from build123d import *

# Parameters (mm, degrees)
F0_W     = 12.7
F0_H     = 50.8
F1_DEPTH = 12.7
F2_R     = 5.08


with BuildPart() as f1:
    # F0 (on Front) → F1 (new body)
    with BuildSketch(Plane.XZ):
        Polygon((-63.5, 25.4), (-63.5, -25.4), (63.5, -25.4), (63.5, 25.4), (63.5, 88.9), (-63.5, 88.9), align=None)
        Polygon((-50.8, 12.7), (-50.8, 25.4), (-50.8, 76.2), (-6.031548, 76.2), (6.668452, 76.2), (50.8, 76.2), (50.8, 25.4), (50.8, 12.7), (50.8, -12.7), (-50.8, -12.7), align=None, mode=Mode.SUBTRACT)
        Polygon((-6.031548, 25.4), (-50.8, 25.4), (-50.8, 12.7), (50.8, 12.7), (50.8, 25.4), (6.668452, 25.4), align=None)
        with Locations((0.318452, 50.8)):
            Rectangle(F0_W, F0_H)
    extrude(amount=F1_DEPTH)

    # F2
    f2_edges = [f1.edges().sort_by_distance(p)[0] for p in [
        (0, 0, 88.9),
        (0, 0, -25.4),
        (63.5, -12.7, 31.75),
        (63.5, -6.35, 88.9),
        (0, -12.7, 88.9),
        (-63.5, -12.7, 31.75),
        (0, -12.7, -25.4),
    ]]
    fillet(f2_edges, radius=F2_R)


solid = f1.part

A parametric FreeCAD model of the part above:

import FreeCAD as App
import Part
import Sketcher
Q = App.Units.Quantity


def edges_at(feature, points):
    """Names of the edges that pass closest to the given points."""
    edges = feature.Shape.Edges
    near = lambda p: min(range(len(edges)), key=lambda i: edges[i].distToShape(Part.Vertex(*p))[0])
    return sorted({f"Edge{near(p) + 1}" for p in points})


def add_polygon(sketch, points):
    """Adds a closed chain of lines whose ends are joined by coincident constraints."""
    first, n = sketch.GeometryCount, len(points)
    for a, b in zip(points, points[1:] + points[:1]):
        sketch.addGeometry(Part.LineSegment(App.Vector(*a, 0), App.Vector(*b, 0)), False)
    for i in range(n):
        sketch.addConstraint(Sketcher.Constraint("Coincident", first + i, 2, first + (i + 1) % n, 1))

doc = App.newDocument("Part")
body = doc.addObject("PartDesign::Body", "Body")

# Sketch on XZ plane
sketch1 = body.newObject("Sketcher::SketchObject", "Sketch")
sketch1.AttachmentSupport = (doc.getObject("XZ_Plane"), [""])
sketch1.MapMode = "FlatFace"
add_polygon(sketch1, [(-63.5, -25.4), (63.5, -25.4), (63.5, 88.9), (-63.5, 88.9)])  # lines 0-3
add_polygon(sketch1, [(-50.8, -12.7), (-50.8, 12.7), (50.8, 12.7), (50.8, -12.7)])  # lines 4-7
add_polygon(sketch1, [(-50.8, 25.4), (-50.8, 76.2), (-6.031548, 76.2), (-6.031548, 25.4)])  # lines 8-11
add_polygon(sketch1, [(6.668452, 76.2), (50.8, 76.2), (50.8, 25.4), (6.668452, 25.4)])  # lines 12-15
sketch1.addConstraint(Sketcher.Constraint("Horizontal", 0))
sketch1.addConstraint(Sketcher.Constraint("Vertical", 1))
sketch1.addConstraint(Sketcher.Constraint("Horizontal", 2))
sketch1.addConstraint(Sketcher.Constraint("Vertical", 3))
sketch1.addConstraint(Sketcher.Constraint("Vertical", 4))
sketch1.addConstraint(Sketcher.Constraint("Horizontal", 5))
sketch1.addConstraint(Sketcher.Constraint("Vertical", 6))
sketch1.addConstraint(Sketcher.Constraint("Horizontal", 7))
sketch1.addConstraint(Sketcher.Constraint("Vertical", 8))
sketch1.addConstraint(Sketcher.Constraint("Horizontal", 9))
sketch1.addConstraint(Sketcher.Constraint("Vertical", 10))
sketch1.addConstraint(Sketcher.Constraint("Horizontal", 11))
sketch1.addConstraint(Sketcher.Constraint("Horizontal", 12))
sketch1.addConstraint(Sketcher.Constraint("Vertical", 13))
sketch1.addConstraint(Sketcher.Constraint("Horizontal", 14))
sketch1.addConstraint(Sketcher.Constraint("Vertical", 15))
sketch1.addConstraint(Sketcher.Constraint("Symmetric", 4, 2, 6, 2, -1, 1))
sketch1.addConstraint(Sketcher.Constraint("Symmetric", 8, 2, 12, 2, -2))
sketch1.addConstraint(Sketcher.Constraint("Horizontal", 11, 2, 13, 2))
sketch1.addConstraint(Sketcher.Constraint("Vertical", 7, 2, 8, 2))
sketch1.addConstraint(Sketcher.Constraint("DistanceX", 0, 1, 0, 2, Q("5 in")))
sketch1.addConstraint(Sketcher.Constraint("DistanceX", 5, 1, 5, 2, Q("4 in")))
sketch1.addConstraint(Sketcher.Constraint("DistanceY", 4, 1, 4, 2, Q("1 in")))
sketch1.addConstraint(Sketcher.Constraint("DistanceY", 8, 1, 8, 2, Q("2 in")))
sketch1.addConstraint(Sketcher.Constraint("DistanceY", 1, 1, 1, 2, Q("4.5 in")))
sketch1.addConstraint(Sketcher.Constraint("DistanceY", 0, 2, -1, 1, Q("1 in")))
sketch1.addConstraint(Sketcher.Constraint("DistanceY", -1, 1, 8, 2, Q("3 in")))
sketch1.addConstraint(Sketcher.Constraint("DistanceX", -1, 1, 0, 2, Q("2.5 in")))
sketch1.addConstraint(Sketcher.Constraint("DistanceX", 10, 2, 14, 2, Q("0.5 in")))
sketch1.addConstraint(Sketcher.Constraint("DistanceX", 9, 1, 9, 2, Q("44.768452 mm")))
pad1 = body.newObject("PartDesign::Pad", "Pad")
pad1.Profile = sketch1
pad1.Length = Q("0.5 in")
doc.recompute()

fillet = body.newObject("PartDesign::Fillet", "Fillet")
fillet.Base = (pad1, edges_at(pad1, [
    (0, 0, 88.9),
    (0, 0, -25.4),
    (63.5, -12.7, 31.75),
    (63.5, -6.35, 88.9),
    (0, -12.7, 88.9),
    (-63.5, -12.7, 31.75),
    (0, -12.7, -25.4),
]))
fillet.Radius = Q("0.2 in")

doc.recompute()
